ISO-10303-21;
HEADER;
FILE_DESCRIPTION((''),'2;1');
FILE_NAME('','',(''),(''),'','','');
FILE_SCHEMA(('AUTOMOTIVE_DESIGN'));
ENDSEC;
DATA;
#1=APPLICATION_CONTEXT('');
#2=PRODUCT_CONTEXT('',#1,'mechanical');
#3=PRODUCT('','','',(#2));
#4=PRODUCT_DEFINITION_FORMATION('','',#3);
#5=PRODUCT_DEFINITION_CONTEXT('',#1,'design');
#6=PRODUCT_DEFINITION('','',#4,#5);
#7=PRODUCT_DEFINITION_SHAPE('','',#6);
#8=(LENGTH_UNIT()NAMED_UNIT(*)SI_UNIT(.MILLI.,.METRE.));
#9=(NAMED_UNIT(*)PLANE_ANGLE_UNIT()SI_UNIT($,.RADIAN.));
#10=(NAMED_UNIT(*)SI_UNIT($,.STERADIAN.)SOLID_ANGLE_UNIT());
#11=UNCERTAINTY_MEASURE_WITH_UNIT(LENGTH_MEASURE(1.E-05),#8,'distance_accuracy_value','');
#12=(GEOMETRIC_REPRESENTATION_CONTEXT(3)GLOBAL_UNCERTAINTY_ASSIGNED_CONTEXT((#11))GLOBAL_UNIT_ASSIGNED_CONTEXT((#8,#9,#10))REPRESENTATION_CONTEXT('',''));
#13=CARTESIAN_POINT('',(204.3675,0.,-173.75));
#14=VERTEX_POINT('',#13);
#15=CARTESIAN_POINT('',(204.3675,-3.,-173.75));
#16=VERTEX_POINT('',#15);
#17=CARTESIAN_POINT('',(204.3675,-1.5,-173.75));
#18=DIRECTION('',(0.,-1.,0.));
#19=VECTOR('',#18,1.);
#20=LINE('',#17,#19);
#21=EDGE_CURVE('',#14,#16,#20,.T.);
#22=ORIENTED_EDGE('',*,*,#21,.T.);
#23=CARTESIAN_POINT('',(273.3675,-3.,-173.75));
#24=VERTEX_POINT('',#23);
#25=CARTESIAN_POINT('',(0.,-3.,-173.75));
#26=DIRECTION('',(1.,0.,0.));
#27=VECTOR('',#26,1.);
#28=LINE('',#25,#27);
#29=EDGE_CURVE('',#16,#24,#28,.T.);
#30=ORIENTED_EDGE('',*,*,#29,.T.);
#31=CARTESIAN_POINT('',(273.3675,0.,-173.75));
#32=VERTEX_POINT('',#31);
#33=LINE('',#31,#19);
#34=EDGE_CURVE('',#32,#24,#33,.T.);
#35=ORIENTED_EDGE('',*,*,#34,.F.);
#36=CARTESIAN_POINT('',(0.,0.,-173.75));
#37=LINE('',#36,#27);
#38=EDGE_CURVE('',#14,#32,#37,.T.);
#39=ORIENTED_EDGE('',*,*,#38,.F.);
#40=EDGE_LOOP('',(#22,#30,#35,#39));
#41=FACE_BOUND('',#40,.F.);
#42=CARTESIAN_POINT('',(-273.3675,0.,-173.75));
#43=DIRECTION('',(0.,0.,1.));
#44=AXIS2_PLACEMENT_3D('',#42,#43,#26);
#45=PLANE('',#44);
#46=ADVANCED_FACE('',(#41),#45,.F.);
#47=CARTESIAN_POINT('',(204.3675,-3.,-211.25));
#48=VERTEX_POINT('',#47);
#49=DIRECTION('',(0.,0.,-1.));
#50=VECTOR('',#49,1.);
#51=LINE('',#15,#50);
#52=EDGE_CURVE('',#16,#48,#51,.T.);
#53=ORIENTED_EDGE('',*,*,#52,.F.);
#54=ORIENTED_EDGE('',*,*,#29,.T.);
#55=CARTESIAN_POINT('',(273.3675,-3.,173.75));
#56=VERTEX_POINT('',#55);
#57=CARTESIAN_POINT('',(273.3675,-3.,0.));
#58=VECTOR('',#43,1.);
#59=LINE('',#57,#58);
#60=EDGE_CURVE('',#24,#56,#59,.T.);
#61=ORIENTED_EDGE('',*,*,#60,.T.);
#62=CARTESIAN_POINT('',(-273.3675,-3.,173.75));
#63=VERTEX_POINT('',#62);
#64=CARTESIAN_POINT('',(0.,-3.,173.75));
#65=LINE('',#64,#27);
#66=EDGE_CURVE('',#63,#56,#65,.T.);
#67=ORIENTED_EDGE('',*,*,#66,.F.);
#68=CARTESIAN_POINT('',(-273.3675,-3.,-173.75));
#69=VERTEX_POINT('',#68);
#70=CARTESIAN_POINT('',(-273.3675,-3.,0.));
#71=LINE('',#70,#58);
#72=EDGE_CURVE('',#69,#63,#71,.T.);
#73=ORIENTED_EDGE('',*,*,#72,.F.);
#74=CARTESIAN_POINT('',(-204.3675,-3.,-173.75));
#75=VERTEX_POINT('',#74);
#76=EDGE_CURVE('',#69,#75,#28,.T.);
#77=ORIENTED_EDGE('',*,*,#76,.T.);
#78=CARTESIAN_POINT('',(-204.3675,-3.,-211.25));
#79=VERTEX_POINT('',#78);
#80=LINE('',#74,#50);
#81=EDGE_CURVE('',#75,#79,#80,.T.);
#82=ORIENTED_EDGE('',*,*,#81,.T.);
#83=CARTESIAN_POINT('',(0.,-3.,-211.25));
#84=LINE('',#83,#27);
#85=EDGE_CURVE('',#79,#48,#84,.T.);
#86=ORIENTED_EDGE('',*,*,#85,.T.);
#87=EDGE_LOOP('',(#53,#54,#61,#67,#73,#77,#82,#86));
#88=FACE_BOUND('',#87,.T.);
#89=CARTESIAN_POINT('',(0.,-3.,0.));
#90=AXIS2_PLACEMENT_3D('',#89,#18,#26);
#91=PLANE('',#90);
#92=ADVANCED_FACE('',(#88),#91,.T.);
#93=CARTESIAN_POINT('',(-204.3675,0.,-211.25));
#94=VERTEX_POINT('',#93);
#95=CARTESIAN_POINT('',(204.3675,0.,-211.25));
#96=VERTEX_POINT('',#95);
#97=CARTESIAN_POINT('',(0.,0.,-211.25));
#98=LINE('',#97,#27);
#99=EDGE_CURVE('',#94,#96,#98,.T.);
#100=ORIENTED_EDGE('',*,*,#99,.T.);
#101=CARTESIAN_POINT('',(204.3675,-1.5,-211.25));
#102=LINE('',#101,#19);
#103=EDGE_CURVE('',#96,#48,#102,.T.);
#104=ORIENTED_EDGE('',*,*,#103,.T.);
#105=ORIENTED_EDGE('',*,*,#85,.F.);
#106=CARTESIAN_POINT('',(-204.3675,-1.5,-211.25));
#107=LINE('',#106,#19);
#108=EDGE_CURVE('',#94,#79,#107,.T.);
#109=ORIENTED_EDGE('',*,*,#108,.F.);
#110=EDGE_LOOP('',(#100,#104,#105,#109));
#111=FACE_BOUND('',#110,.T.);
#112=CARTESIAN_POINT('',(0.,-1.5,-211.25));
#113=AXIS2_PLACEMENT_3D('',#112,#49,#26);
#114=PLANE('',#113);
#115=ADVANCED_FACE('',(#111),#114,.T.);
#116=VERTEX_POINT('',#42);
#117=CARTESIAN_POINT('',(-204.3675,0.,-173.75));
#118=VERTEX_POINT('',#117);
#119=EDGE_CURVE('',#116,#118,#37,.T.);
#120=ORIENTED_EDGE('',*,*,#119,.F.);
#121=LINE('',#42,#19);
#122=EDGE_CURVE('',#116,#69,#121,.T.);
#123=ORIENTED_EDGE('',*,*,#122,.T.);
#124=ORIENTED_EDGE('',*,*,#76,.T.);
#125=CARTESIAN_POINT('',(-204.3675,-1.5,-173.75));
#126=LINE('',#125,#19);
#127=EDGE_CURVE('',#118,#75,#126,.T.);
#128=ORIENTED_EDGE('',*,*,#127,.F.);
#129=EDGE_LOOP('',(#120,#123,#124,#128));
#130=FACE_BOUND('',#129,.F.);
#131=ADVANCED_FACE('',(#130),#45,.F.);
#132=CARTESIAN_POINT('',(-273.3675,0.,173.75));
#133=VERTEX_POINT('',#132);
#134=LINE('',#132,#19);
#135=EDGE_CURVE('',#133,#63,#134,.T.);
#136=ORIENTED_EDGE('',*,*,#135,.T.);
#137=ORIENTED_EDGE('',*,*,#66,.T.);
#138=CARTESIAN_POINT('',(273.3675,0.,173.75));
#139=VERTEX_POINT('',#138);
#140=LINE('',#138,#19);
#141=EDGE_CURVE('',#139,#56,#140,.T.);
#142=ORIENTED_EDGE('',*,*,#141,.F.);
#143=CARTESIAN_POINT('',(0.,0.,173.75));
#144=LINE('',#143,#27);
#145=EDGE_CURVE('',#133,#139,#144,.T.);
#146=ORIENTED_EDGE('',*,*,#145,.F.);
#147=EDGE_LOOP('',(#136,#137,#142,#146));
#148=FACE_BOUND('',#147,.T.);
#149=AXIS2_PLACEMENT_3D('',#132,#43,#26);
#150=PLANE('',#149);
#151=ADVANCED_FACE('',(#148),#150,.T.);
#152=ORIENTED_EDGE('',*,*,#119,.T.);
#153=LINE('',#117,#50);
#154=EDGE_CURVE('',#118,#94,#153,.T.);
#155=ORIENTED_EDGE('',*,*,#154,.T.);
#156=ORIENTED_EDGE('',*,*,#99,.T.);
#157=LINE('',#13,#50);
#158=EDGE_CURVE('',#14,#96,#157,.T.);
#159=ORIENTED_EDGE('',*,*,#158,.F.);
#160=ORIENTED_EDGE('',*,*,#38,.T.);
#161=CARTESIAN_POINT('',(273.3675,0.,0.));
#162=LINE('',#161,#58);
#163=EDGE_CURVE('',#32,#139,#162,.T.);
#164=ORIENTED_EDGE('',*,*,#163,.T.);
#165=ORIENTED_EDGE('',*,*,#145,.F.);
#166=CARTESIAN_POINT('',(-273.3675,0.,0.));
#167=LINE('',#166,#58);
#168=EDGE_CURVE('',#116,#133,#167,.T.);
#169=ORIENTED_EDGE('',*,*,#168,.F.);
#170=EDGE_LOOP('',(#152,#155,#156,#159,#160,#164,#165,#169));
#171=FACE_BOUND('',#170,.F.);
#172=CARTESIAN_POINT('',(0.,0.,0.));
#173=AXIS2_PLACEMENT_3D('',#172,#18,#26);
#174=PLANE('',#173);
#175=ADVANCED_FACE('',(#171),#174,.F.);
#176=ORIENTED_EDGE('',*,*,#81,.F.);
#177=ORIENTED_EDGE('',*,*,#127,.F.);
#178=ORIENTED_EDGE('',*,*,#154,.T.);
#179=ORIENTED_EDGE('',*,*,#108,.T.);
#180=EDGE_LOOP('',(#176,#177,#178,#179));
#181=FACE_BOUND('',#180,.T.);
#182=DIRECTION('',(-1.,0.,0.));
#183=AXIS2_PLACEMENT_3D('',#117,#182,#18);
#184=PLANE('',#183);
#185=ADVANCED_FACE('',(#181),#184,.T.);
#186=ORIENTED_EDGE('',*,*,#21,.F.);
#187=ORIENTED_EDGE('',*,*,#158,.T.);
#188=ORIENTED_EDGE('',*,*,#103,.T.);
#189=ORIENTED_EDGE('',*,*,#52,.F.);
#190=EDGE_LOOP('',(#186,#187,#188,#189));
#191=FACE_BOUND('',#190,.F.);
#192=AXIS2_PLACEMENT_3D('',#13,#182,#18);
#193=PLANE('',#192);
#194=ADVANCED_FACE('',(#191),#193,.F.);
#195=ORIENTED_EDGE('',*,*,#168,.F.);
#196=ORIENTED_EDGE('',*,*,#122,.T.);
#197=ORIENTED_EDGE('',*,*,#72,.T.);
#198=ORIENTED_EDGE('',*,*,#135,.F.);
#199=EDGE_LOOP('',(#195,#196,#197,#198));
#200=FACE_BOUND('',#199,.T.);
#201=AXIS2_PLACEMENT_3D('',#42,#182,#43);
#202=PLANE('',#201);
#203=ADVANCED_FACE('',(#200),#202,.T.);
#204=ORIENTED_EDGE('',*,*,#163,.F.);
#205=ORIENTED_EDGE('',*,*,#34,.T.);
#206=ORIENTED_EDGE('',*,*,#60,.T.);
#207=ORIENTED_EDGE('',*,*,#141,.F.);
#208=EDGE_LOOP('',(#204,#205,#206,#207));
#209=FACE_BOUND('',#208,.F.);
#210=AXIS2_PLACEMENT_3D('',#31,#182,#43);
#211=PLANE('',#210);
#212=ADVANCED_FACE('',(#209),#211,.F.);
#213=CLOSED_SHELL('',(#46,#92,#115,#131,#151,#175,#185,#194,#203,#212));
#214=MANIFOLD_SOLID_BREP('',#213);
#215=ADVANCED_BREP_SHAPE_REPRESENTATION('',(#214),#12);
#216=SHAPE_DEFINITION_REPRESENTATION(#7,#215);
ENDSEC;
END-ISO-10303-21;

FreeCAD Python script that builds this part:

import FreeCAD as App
import Part
import Sketcher
Q = App.Units.Quantity


def add_polygon(sketch, points):
    """Adds a closed chain of lines whose ends are joined by coincident constraints."""
    first, n = sketch.GeometryCount, len(points)
    for a, b in zip(points, points[1:] + points[:1]):
        sketch.addGeometry(Part.LineSegment(App.Vector(*a, 0), App.Vector(*b, 0)), False)
    for i in range(n):
        sketch.addConstraint(Sketcher.Constraint("Coincident", first + i, 2, first + (i + 1) % n, 1))

doc = App.newDocument("Part")
body = doc.addObject("PartDesign::Body", "Body")

sketch1 = body.newObject("Sketcher::SketchObject", "Sketch")
sketch1.AttachmentSupport = (doc.getObject("XZ_Plane"), [""])
sketch1.MapMode = "FlatFace"
add_polygon(sketch1, [(-273, 174), (-273, -174), (273, -174), (273, 174)])
sketch1.addConstraint(Sketcher.Constraint("Vertical", 0))
sketch1.addConstraint(Sketcher.Constraint("Horizontal", 1))
sketch1.addConstraint(Sketcher.Constraint("Vertical", 2))
sketch1.addConstraint(Sketcher.Constraint("Horizontal", 3))
sketch1.addConstraint(Sketcher.Constraint("Symmetric", 0, 2, 2, 2, -1, 1))
sketch1.addConstraint(Sketcher.Constraint("DistanceY", 0, 2, 0, 1, Q("347.5 mm")))
sketch1.addConstraint(Sketcher.Constraint("DistanceX", 1, 1, 1, 2, Q("546.735 mm")))
pad1 = body.newObject("PartDesign::Pad", "Pad")
pad1.Profile = sketch1
pad1.Length = 3

sketch2 = body.newObject("Sketcher::SketchObject", "Sketch001")
sketch2.AttachmentSupport = (doc.getObject("XY_Plane"), [""])
sketch2.MapMode = "FlatFace"
sketch2.AttachmentOffset = App.Placement(App.Vector(0, 0, -173.75), App.Rotation())
add_polygon(sketch2, [(-204.4, -3), (-204.4, 0), (204.4, 0), (204.4, -3)])
sketch2.addConstraint(Sketcher.Constraint("Vertical", 0))
sketch2.addConstraint(Sketcher.Constraint("Horizontal", 1))
sketch2.addConstraint(Sketcher.Constraint("Vertical", 2))
sketch2.addConstraint(Sketcher.Constraint("Horizontal", 3))
sketch2.addConstraint(Sketcher.Constraint("Symmetric", 0, 2, 1, 2, -1, 1))
sketch2.addConstraint(Sketcher.Constraint("DistanceY", 0, 1, 0, 2, Q("3 mm")))
sketch2.addConstraint(Sketcher.Constraint("DistanceX", 1, 1, 1, 2, Q("408.735 mm")))
pad2 = body.newObject("PartDesign::Pad", "Pad001")
pad2.Profile = sketch2
pad2.Length = 37.5
pad2.Reversed = True

doc.recompute()
